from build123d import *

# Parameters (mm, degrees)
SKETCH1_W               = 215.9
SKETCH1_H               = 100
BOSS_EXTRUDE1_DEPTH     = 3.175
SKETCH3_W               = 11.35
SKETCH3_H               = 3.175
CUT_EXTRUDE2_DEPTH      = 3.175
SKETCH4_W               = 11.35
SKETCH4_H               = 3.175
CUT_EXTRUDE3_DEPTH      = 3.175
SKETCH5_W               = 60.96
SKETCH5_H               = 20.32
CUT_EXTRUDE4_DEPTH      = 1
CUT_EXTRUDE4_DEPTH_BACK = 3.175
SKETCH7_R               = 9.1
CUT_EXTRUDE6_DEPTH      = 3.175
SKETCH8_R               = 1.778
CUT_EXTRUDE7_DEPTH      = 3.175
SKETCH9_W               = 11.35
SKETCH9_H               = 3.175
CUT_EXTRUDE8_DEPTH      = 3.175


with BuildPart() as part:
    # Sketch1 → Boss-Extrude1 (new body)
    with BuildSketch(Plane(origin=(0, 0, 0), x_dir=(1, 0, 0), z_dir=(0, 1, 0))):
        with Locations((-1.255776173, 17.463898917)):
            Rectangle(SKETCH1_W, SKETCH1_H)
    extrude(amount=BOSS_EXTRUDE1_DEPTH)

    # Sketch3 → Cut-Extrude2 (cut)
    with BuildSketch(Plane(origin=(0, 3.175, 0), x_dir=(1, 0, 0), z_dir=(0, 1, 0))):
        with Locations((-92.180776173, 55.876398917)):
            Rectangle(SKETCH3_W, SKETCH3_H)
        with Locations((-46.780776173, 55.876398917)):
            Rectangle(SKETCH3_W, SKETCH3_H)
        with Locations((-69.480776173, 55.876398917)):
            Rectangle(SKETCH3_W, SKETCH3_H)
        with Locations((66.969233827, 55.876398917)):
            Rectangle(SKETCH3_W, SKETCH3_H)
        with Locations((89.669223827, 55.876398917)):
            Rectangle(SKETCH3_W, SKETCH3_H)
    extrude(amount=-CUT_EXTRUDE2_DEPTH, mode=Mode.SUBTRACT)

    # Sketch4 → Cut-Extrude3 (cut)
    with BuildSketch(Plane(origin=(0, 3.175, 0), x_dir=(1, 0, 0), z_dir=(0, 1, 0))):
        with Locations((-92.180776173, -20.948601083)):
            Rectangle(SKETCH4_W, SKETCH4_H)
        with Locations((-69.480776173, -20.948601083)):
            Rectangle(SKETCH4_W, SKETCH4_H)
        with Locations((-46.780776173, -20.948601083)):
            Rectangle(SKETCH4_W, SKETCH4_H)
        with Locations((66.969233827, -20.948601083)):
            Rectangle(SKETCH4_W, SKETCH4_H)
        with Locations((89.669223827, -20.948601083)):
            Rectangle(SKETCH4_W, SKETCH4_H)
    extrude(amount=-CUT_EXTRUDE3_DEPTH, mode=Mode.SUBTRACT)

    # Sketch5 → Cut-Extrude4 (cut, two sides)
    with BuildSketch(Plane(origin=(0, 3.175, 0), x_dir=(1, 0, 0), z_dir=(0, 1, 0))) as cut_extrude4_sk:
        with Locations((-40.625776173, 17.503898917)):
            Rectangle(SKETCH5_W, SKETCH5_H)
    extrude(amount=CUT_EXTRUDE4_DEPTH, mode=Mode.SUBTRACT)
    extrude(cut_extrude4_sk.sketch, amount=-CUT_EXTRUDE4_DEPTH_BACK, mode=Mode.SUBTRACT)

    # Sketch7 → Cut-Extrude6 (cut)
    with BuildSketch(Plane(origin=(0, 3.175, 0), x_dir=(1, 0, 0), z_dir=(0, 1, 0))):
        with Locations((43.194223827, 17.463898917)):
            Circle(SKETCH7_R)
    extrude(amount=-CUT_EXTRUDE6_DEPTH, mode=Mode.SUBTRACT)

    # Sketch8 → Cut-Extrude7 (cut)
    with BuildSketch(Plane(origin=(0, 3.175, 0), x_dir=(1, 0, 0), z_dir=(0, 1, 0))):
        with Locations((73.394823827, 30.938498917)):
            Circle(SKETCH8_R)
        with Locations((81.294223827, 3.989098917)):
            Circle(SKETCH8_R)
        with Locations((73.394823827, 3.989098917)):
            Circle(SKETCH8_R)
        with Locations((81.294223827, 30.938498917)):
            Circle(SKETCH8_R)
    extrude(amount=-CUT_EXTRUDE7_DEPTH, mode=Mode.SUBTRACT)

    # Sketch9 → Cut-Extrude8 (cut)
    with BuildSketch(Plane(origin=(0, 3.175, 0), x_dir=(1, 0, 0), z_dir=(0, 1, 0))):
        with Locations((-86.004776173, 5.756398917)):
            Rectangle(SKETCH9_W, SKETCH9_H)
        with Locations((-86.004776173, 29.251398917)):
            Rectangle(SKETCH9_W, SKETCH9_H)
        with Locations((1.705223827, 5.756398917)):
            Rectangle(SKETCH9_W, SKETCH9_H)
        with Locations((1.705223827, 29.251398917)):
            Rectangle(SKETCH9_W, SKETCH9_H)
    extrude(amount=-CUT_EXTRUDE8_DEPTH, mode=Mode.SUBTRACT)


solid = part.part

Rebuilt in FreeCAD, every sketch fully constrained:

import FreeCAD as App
import Part
import Sketcher
Q = App.Units.Quantity

doc = App.newDocument("Part")
body = doc.addObject("PartDesign::Body", "Body")

# Sketch on XZ plane
sketch1 = doc.addObject("Sketcher::SketchObject", "Sketch")
body.addObject(sketch1)
sketch1.AttachmentSupport = (doc.XZ_Plane, [""])
sketch1.MapMode = "FlatFace"
sketch1.addGeometry([
    Part.LineSegment(App.Vector(-109.205776, -67.463899, 0), App.Vector(-109.205776, 32.536101, 0)),
    Part.LineSegment(App.Vector(-109.205776, 32.536101, 0), App.Vector(106.694224, 32.536101, 0)),
    Part.LineSegment(App.Vector(106.694224, 32.536101, 0), App.Vector(106.694224, -67.463899, 0)),
    Part.LineSegment(App.Vector(106.694224, -67.463899, 0), App.Vector(-109.205776, -67.463899, 0)),
], False)
sketch1.addConstraint([
    Sketcher.Constraint("Coincident", 0, 2, 1, 1),
    Sketcher.Constraint("Coincident", 1, 2, 2, 1),
    Sketcher.Constraint("Coincident", 2, 2, 3, 1),
    Sketcher.Constraint("Coincident", 3, 2, 0, 1),
    Sketcher.Constraint("Vertical", 0),
    Sketcher.Constraint("Horizontal", 1),
    Sketcher.Constraint("Vertical", 2),
    Sketcher.Constraint("Horizontal", 3),
    Sketcher.Constraint("DistanceX", 1, 1, 1, 2, Q("8.5 in")),
    Sketcher.Constraint("DistanceY", 0, 1, 0, 2, 100.0),
    Sketcher.Constraint("DistanceY", -1, 1, 0, 2, 32.536101),
    Sketcher.Constraint("DistanceX", 0, 2, -1, 1, 109.205776),
])
pad1 = doc.addObject("PartDesign::Pad", "Pad")
body.addObject(pad1)
pad1.Profile = sketch1
pad1.Length = Q("0.125 in")
pad1.Reversed = True

# Sketch on XZ plane
sketch2 = doc.addObject("Sketcher::SketchObject", "Sketch001")
body.addObject(sketch2)
sketch2.AttachmentSupport = (doc.XZ_Plane, [""])
sketch2.MapMode = "FlatFace"
sketch2.AttachmentOffset = App.Placement(App.Vector(0, 0, -0.125 * 25.4), App.Rotation())
sketch2.addGeometry([
    Part.LineSegment(App.Vector(-97.855776, -57.463899, 0), App.Vector(-97.855776, -54.288899, 0)),  # 0
    Part.LineSegment(App.Vector(-97.855776, -54.288899, 0), App.Vector(-86.505776, -54.288899, 0)),  # 1
    Part.LineSegment(App.Vector(-86.505776, -54.288899, 0), App.Vector(-86.505776, -57.463899, 0)),  # 2
    Part.LineSegment(App.Vector(-86.505776, -57.463899, 0), App.Vector(-97.855776, -57.463899, 0)),  # 3
    Part.LineSegment(App.Vector(-52.455776, -57.463899, 0), App.Vector(-52.455776, -54.288899, 0)),  # 4
    Part.LineSegment(App.Vector(-52.455776, -54.288899, 0), App.Vector(-41.105776, -54.288899, 0)),  # 5
    Part.LineSegment(App.Vector(-41.105776, -54.288899, 0), App.Vector(-41.105776, -57.463899, 0)),  # 6
    Part.LineSegment(App.Vector(-41.105776, -57.463899, 0), App.Vector(-52.455776, -57.463899, 0)),  # 7
    Part.LineSegment(App.Vector(-75.155776, -57.463899, 0), App.Vector(-75.155776, -54.288899, 0)),  # 8
    Part.LineSegment(App.Vector(-75.155776, -54.288899, 0), App.Vector(-63.805776, -54.288899, 0)),  # 9
    Part.LineSegment(App.Vector(-63.805776, -54.288899, 0), App.Vector(-63.805776, -57.463899, 0)),  # 10
    Part.LineSegment(App.Vector(-63.805776, -57.463899, 0), App.Vector(-75.155776, -57.463899, 0)),  # 11
    Part.LineSegment(App.Vector(61.294234, -57.463899, 0), App.Vector(61.294234, -54.288899, 0)),  # 12
    Part.LineSegment(App.Vector(61.294234, -54.288899, 0), App.Vector(72.644234, -54.288899, 0)),  # 13
    Part.LineSegment(App.Vector(72.644234, -54.288899, 0), App.Vector(72.644234, -57.463899, 0)),  # 14
    Part.LineSegment(App.Vector(72.644234, -57.463899, 0), App.Vector(61.294234, -57.463899, 0)),  # 15
    Part.LineSegment(App.Vector(83.994224, -57.463899, 0), App.Vector(83.994224, -54.288899, 0)),  # 16
    Part.LineSegment(App.Vector(83.994224, -54.288899, 0), App.Vector(95.344224, -54.288899, 0)),  # 17
    Part.LineSegment(App.Vector(95.344224, -54.288899, 0), App.Vector(95.344224, -57.463899, 0)),  # 18
    Part.LineSegment(App.Vector(95.344224, -57.463899, 0), App.Vector(83.994224, -57.463899, 0)),  # 19
], False)
sketch2.addConstraint([
    Sketcher.Constraint("Coincident", 0, 2, 1, 1),
    Sketcher.Constraint("Coincident", 1, 2, 2, 1),
    Sketcher.Constraint("Coincident", 2, 2, 3, 1),
    Sketcher.Constraint("Coincident", 3, 2, 0, 1),
    Sketcher.Constraint("Coincident", 4, 2, 5, 1),
    Sketcher.Constraint("Coincident", 5, 2, 6, 1),
    Sketcher.Constraint("Coincident", 6, 2, 7, 1),
    Sketcher.Constraint("Coincident", 7, 2, 4, 1),
    Sketcher.Constraint("Coincident", 8, 2, 9, 1),
    Sketcher.Constraint("Coincident", 9, 2, 10, 1),
    Sketcher.Constraint("Coincident", 10, 2, 11, 1),
    Sketcher.Constraint("Coincident", 11, 2, 8, 1),
    Sketcher.Constraint("Coincident", 12, 2, 13, 1),
    Sketcher.Constraint("Coincident", 13, 2, 14, 1),
    Sketcher.Constraint("Coincident", 14, 2, 15, 1),
    Sketcher.Constraint("Coincident", 15, 2, 12, 1),
    Sketcher.Constraint("Coincident", 16, 2, 17, 1),
    Sketcher.Constraint("Coincident", 17, 2, 18, 1),
    Sketcher.Constraint("Coincident", 18, 2, 19, 1),
    Sketcher.Constraint("Coincident", 19, 2, 16, 1),
    Sketcher.Constraint("Vertical", 0),
    Sketcher.Constraint("Horizontal", 1),
    Sketcher.Constraint("Vertical", 2),
    Sketcher.Constraint("Horizontal", 3),
    Sketcher.Constraint("Vertical", 4),
    Sketcher.Constraint("Horizontal", 5),
    Sketcher.Constraint("Vertical", 6),
    Sketcher.Constraint("Horizontal", 7),
    Sketcher.Constraint("Vertical", 8),
    Sketcher.Constraint("Horizontal", 9),
    Sketcher.Constraint("Vertical", 10),
    Sketcher.Constraint("Horizontal", 11),
    Sketcher.Constraint("Vertical", 12),
    Sketcher.Constraint("Horizontal", 13),
    Sketcher.Constraint("Vertical", 14),
    Sketcher.Constraint("Horizontal", 15),
    Sketcher.Constraint("Vertical", 16),
    Sketcher.Constraint("Horizontal", 17),
    Sketcher.Constraint("Vertical", 18),
    Sketcher.Constraint("Horizontal", 19),
    Sketcher.Constraint("Horizontal", 1, 2, 4, 2),
    Sketcher.Constraint("Horizontal", 3, 2, 6, 2),
    Sketcher.Constraint("Horizontal", 5, 2, 8, 2),
    Sketcher.Constraint("Horizontal", 7, 2, 10, 2),
    Sketcher.Constraint("Horizontal", 9, 2, 12, 2),
    Sketcher.Constraint("Horizontal", 11, 2, 14, 2),
    Sketcher.Constraint("Horizontal", 13, 2, 16, 2),
    Sketcher.Constraint("Horizontal", 15, 2, 18, 2),
    Sketcher.Constraint("Equal", 3, 5),
    Sketcher.Constraint("Equal", 7, 9),
    Sketcher.Constraint("Equal", 11, 13),
    Sketcher.Constraint("Equal", 15, 17),
    Sketcher.Constraint("DistanceY", 0, 1, 0, 2, Q("0.125 in")),
    Sketcher.Constraint("DistanceX", 1, 1, 1, 2, 11.35),
    Sketcher.Constraint("DistanceY", 0, 2, -1, 1, 54.288899),
    Sketcher.Constraint("DistanceX", 1, 2, 4, 2, 34.05),
    Sketcher.Constraint("DistanceX", 1, 2, 8, 2, 11.35),
    Sketcher.Constraint("DistanceX", 5, 2, 16, 2, 125.1),
    Sketcher.Constraint("DistanceX", 5, 2, 12, 2, 102.40001),
    Sketcher.Constraint("DistanceX", 0, 2, -1, 1, 97.855776),
])
pocket1 = doc.addObject("PartDesign::Pocket", "Pocket")
body.addObject(pocket1)
pocket1.Profile = sketch2
pocket1.Length = Q("0.125 in")
pocket1.Reversed = True

# Sketch on XZ plane
sketch3 = doc.addObject("Sketcher::SketchObject", "Sketch002")
body.addObject(sketch3)
sketch3.AttachmentSupport = (doc.XZ_Plane, [""])
sketch3.MapMode = "FlatFace"
sketch3.AttachmentOffset = App.Placement(App.Vector(0, 0, -0.125 * 25.4), App.Rotation())
sketch3.addGeometry([
    Part.LineSegment(App.Vector(-97.855776, 19.361101, 0), App.Vector(-97.855776, 22.536101, 0)),  # 0
    Part.LineSegment(App.Vector(-97.855776, 22.536101, 0), App.Vector(-86.505776, 22.536101, 0)),  # 1
    Part.LineSegment(App.Vector(-86.505776, 22.536101, 0), App.Vector(-86.505776, 19.361101, 0)),  # 2
    Part.LineSegment(App.Vector(-86.505776, 19.361101, 0), App.Vector(-97.855776, 19.361101, 0)),  # 3
    Part.LineSegment(App.Vector(-75.155776, 19.361101, 0), App.Vector(-75.155776, 22.536101, 0)),  # 4
    Part.LineSegment(App.Vector(-75.155776, 22.536101, 0), App.Vector(-63.805776, 22.536101, 0)),  # 5
    Part.LineSegment(App.Vector(-63.805776, 22.536101, 0), App.Vector(-63.805776, 19.361101, 0)),  # 6
    Part.LineSegment(App.Vector(-63.805776, 19.361101, 0), App.Vector(-75.155776, 19.361101, 0)),  # 7
    Part.LineSegment(App.Vector(-52.455776, 19.361101, 0), App.Vector(-52.455776, 22.536101, 0)),  # 8
    Part.LineSegment(App.Vector(-52.455776, 22.536101, 0), App.Vector(-41.105776, 22.536101, 0)),  # 9
    Part.LineSegment(App.Vector(-41.105776, 22.536101, 0), App.Vector(-41.105776, 19.361101, 0)),  # 10
    Part.LineSegment(App.Vector(-41.105776, 19.361101, 0), App.Vector(-52.455776, 19.361101, 0)),  # 11
    Part.LineSegment(App.Vector(61.294234, 19.361101, 0), App.Vector(61.294234, 22.536101, 0)),  # 12
    Part.LineSegment(App.Vector(61.294234, 22.536101, 0), App.Vector(72.644234, 22.536101, 0)),  # 13
    Part.LineSegment(App.Vector(72.644234, 22.536101, 0), App.Vector(72.644234, 19.361101, 0)),  # 14
    Part.LineSegment(App.Vector(72.644234, 19.361101, 0), App.Vector(61.294234, 19.361101, 0)),  # 15
    Part.LineSegment(App.Vector(83.994224, 19.361101, 0), App.Vector(83.994224, 22.536101, 0)),  # 16
    Part.LineSegment(App.Vector(83.994224, 22.536101, 0), App.Vector(95.344224, 22.536101, 0)),  # 17
    Part.LineSegment(App.Vector(95.344224, 22.536101, 0), App.Vector(95.344224, 19.361101, 0)),  # 18
    Part.LineSegment(App.Vector(95.344224, 19.361101, 0), App.Vector(83.994224, 19.361101, 0)),  # 19
], False)
sketch3.addConstraint([
    Sketcher.Constraint("Coincident", 0, 2, 1, 1),
    Sketcher.Constraint("Coincident", 1, 2, 2, 1),
    Sketcher.Constraint("Coincident", 2, 2, 3, 1),
    Sketcher.Constraint("Coincident", 3, 2, 0, 1),
    Sketcher.Constraint("Coincident", 4, 2, 5, 1),
    Sketcher.Constraint("Coincident", 5, 2, 6, 1),
    Sketcher.Constraint("Coincident", 6, 2, 7, 1),
    Sketcher.Constraint("Coincident", 7, 2, 4, 1),
    Sketcher.Constraint("Coincident", 8, 2, 9, 1),
    Sketcher.Constraint("Coincident", 9, 2, 10, 1),
    Sketcher.Constraint("Coincident", 10, 2, 11, 1),
    Sketcher.Constraint("Coincident", 11, 2, 8, 1),
    Sketcher.Constraint("Coincident", 12, 2, 13, 1),
    Sketcher.Constraint("Coincident", 13, 2, 14, 1),
    Sketcher.Constraint("Coincident", 14, 2, 15, 1),
    Sketcher.Constraint("Coincident", 15, 2, 12, 1),
    Sketcher.Constraint("Coincident", 16, 2, 17, 1),
    Sketcher.Constraint("Coincident", 17, 2, 18, 1),
    Sketcher.Constraint("Coincident", 18, 2, 19, 1),
    Sketcher.Constraint("Coincident", 19, 2, 16, 1),
    Sketcher.Constraint("Vertical", 0),
    Sketcher.Constraint("Horizontal", 1),
    Sketcher.Constraint("Vertical", 2),
    Sketcher.Constraint("Horizontal", 3),
    Sketcher.Constraint("Vertical", 4),
    Sketcher.Constraint("Horizontal", 5),
    Sketcher.Constraint("Vertical", 6),
    Sketcher.Constraint("Horizontal", 7),
    Sketcher.Constraint("Vertical", 8),
    Sketcher.Constraint("Horizontal", 9),
    Sketcher.Constraint("Vertical", 10),
    Sketcher.Constraint("Horizontal", 11),
    Sketcher.Constraint("Vertical", 12),
    Sketcher.Constraint("Horizontal", 13),
    Sketcher.Constraint("Vertical", 14),
    Sketcher.Constraint("Horizontal", 15),
    Sketcher.Constraint("Vertical", 16),
    Sketcher.Constraint("Horizontal", 17),
    Sketcher.Constraint("Vertical", 18),
    Sketcher.Constraint("Horizontal", 19),
    Sketcher.Constraint("Horizontal", 1, 2, 4, 2),
    Sketcher.Constraint("Horizontal", 3, 2, 6, 2),
    Sketcher.Constraint("Horizontal", 5, 2, 8, 2),
    Sketcher.Constraint("Horizontal", 7, 2, 10, 2),
    Sketcher.Constraint("Horizontal", 9, 2, 12, 2),
    Sketcher.Constraint("Horizontal", 11, 2, 14, 2),
    Sketcher.Constraint("Horizontal", 13, 2, 16, 2),
    Sketcher.Constraint("Horizontal", 15, 2, 18, 2),
    Sketcher.Constraint("Equal", 3, 5),
    Sketcher.Constraint("Equal", 7, 9),
    Sketcher.Constraint("Equal", 11, 13),
    Sketcher.Constraint("Equal", 15, 17),
    Sketcher.Constraint("DistanceY", 0, 1, 0, 2, Q("0.125 in")),
    Sketcher.Constraint("DistanceX", 1, 1, 1, 2, 11.35),
    Sketcher.Constraint("DistanceY", -1, 1, 0, 2, 22.536101),
    Sketcher.Constraint("DistanceX", 1, 2, 4, 2, 11.35),
    Sketcher.Constraint("DistanceX", 5, 2, 8, 2, 11.35),
    Sketcher.Constraint("DistanceX", 9, 2, 16, 2, 125.1),
    Sketcher.Constraint("DistanceX", 9, 2, 12, 2, 102.40001),
    Sketcher.Constraint("DistanceX", 0, 2, -1, 1, 97.855776),
])
pocket2 = doc.addObject("PartDesign::Pocket", "Pocket001")
body.addObject(pocket2)
pocket2.Profile = sketch3
pocket2.Length = Q("0.125 in")
pocket2.Reversed = True

# Sketch on XZ plane
sketch4 = doc.addObject("Sketcher::SketchObject", "Sketch003")
body.addObject(sketch4)
sketch4.AttachmentSupport = (doc.XZ_Plane, [""])
sketch4.MapMode = "FlatFace"
sketch4.AttachmentOffset = App.Placement(App.Vector(0, 0, -0.125 * 25.4), App.Rotation())
sketch4.addGeometry([
    Part.LineSegment(App.Vector(-71.105776, -27.663899, 0), App.Vector(-71.105776, -7.343899, 0)),
    Part.LineSegment(App.Vector(-71.105776, -7.343899, 0), App.Vector(-10.145776, -7.343899, 0)),
    Part.LineSegment(App.Vector(-10.145776, -7.343899, 0), App.Vector(-10.145776, -27.663899, 0)),
    Part.LineSegment(App.Vector(-10.145776, -27.663899, 0), App.Vector(-71.105776, -27.663899, 0)),
], False)
sketch4.addConstraint([
    Sketcher.Constraint("Coincident", 0, 2, 1, 1),
    Sketcher.Constraint("Coincident", 1, 2, 2, 1),
    Sketcher.Constraint("Coincident", 2, 2, 3, 1),
    Sketcher.Constraint("Coincident", 3, 2, 0, 1),
    Sketcher.Constraint("Vertical", 0),
    Sketcher.Constraint("Horizontal", 1),
    Sketcher.Constraint("Vertical", 2),
    Sketcher.Constraint("Horizontal", 3),
    Sketcher.Constraint("DistanceX", 1, 1, 1, 2, Q("2.4 in")),
    Sketcher.Constraint("DistanceY", 0, 1, 0, 2, Q("0.8 in")),
    Sketcher.Constraint("DistanceY", 0, 2, -1, 1, 7.343899),
    Sketcher.Constraint("DistanceX", 0, 2, -1, 1, 71.105776),
])
pocket3 = doc.addObject("PartDesign::Pocket", "Pocket002")
body.addObject(pocket3)
pocket3.Profile = sketch4
pocket3.Type = "ThroughAll"
pocket3.Midplane = True

# Sketch on XZ plane
sketch5 = doc.addObject("Sketcher::SketchObject", "Sketch004")
body.addObject(sketch5)
sketch5.AttachmentSupport = (doc.XZ_Plane, [""])
sketch5.MapMode = "FlatFace"
sketch5.AttachmentOffset = App.Placement(App.Vector(0, 0, -0.125 * 25.4), App.Rotation())
sketch5.addGeometry(Part.Circle(App.Vector(43.194224, -17.463899, 0), App.Vector(0, 0, 1), 9.1), False)
sketch5.addConstraint([
    Sketcher.Constraint("Diameter", 0, 18.2),
    Sketcher.Constraint("DistanceY", 0, 3, -1, 1, 17.463899),
    Sketcher.Constraint("DistanceX", -1, 1, 0, 3, 43.194224),
])
pocket4 = doc.addObject("PartDesign::Pocket", "Pocket003")
body.addObject(pocket4)
pocket4.Profile = sketch5
pocket4.Length = Q("0.125 in")
pocket4.Reversed = True

# Sketch on XZ plane
sketch6 = doc.addObject("Sketcher::SketchObject", "Sketch005")
body.addObject(sketch6)
sketch6.AttachmentSupport = (doc.XZ_Plane, [""])
sketch6.MapMode = "FlatFace"
sketch6.AttachmentOffset = App.Placement(App.Vector(0, 0, -0.125 * 25.4), App.Rotation())
sketch6.addGeometry([
    Part.Circle(App.Vector(73.394824, -30.938499, 0), App.Vector(0, 0, 1), 1.778),
    Part.Circle(App.Vector(81.294224, -3.989099, 0), App.Vector(0, 0, 1), 1.778),
    Part.Circle(App.Vector(73.394824, -3.989099, 0), App.Vector(0, 0, 1), 1.778),
    Part.Circle(App.Vector(81.294224, -30.938499, 0), App.Vector(0, 0, 1), 1.778),
], False)
sketch6.addConstraint([
    Sketcher.Constraint("Equal", 0, 1),
    Sketcher.Constraint("Equal", 1, 2),
    Sketcher.Constraint("Equal", 2, 3),
    Sketcher.Constraint("Horizontal", 1, 3, 2, 3),
    Sketcher.Constraint("Horizontal", 0, 3, 3, 3),
    Sketcher.Constraint("Vertical", 0, 3, 2, 3),
    Sketcher.Constraint("Vertical", 1, 3, 3, 3),
    Sketcher.Constraint("Diameter", 0, Q("0.14 in")),
    Sketcher.Constraint("DistanceX", 0, 3, 1, 3, Q("0.311 in")),
    Sketcher.Constraint("DistanceY", 0, 3, 1, 3, Q("1.061 in")),
    Sketcher.Constraint("DistanceY", 0, 3, -1, 1, 30.938499),
    Sketcher.Constraint("DistanceX", -1, 1, 0, 3, 73.394824),
])
pocket5 = doc.addObject("PartDesign::Pocket", "Pocket004")
body.addObject(pocket5)
pocket5.Profile = sketch6
pocket5.Length = Q("0.125 in")
pocket5.Reversed = True

# Sketch on XZ plane
sketch7 = doc.addObject("Sketcher::SketchObject", "Sketch006")
body.addObject(sketch7)
sketch7.AttachmentSupport = (doc.XZ_Plane, [""])
sketch7.MapMode = "FlatFace"
sketch7.AttachmentOffset = App.Placement(App.Vector(0, 0, -0.125 * 25.4), App.Rotation())
sketch7.addGeometry([
    Part.LineSegment(App.Vector(-91.679776, -7.343899, 0), App.Vector(-91.679776, -4.168899, 0)),  # 0
    Part.LineSegment(App.Vector(-91.679776, -4.168899, 0), App.Vector(-80.329776, -4.168899, 0)),  # 1
    Part.LineSegment(App.Vector(-80.329776, -4.168899, 0), App.Vector(-80.329776, -7.343899, 0)),  # 2
    Part.LineSegment(App.Vector(-80.329776, -7.343899, 0), App.Vector(-91.679776, -7.343899, 0)),  # 3
    Part.LineSegment(App.Vector(-91.679776, -30.838899, 0), App.Vector(-91.679776, -27.663899, 0)),  # 4
    Part.LineSegment(App.Vector(-91.679776, -27.663899, 0), App.Vector(-80.329776, -27.663899, 0)),  # 5
    Part.LineSegment(App.Vector(-80.329776, -27.663899, 0), App.Vector(-80.329776, -30.838899, 0)),  # 6
    Part.LineSegment(App.Vector(-80.329776, -30.838899, 0), App.Vector(-91.679776, -30.838899, 0)),  # 7
    Part.LineSegment(App.Vector(-3.969776, -7.343899, 0), App.Vector(-3.969776, -4.168899, 0)),  # 8
    Part.LineSegment(App.Vector(-3.969776, -4.168899, 0), App.Vector(7.380224, -4.168899, 0)),  # 9
    Part.LineSegment(App.Vector(7.380224, -4.168899, 0), App.Vector(7.380224, -7.343899, 0)),  # 10
    Part.LineSegment(App.Vector(7.380224, -7.343899, 0), App.Vector(-3.969776, -7.343899, 0)),  # 11
    Part.LineSegment(App.Vector(-3.969776, -30.838899, 0), App.Vector(-3.969776, -27.663899, 0)),  # 12
    Part.LineSegment(App.Vector(-3.969776, -27.663899, 0), App.Vector(7.380224, -27.663899, 0)),  # 13
    Part.LineSegment(App.Vector(7.380224, -27.663899, 0), App.Vector(7.380224, -30.838899, 0)),  # 14
    Part.LineSegment(App.Vector(7.380224, -30.838899, 0), App.Vector(-3.969776, -30.838899, 0)),  # 15
], False)
sketch7.addConstraint([
    Sketcher.Constraint("Coincident", 0, 2, 1, 1),
    Sketcher.Constraint("Coincident", 1, 2, 2, 1),
    Sketcher.Constraint("Coincident", 2, 2, 3, 1),
    Sketcher.Constraint("Coincident", 3, 2, 0, 1),
    Sketcher.Constraint("Coincident", 4, 2, 5, 1),
    Sketcher.Constraint("Coincident", 5, 2, 6, 1),
    Sketcher.Constraint("Coincident", 6, 2, 7, 1),
    Sketcher.Constraint("Coincident", 7, 2, 4, 1),
    Sketcher.Constraint("Coincident", 8, 2, 9, 1),
    Sketcher.Constraint("Coincident", 9, 2, 10, 1),
    Sketcher.Constraint("Coincident", 10, 2, 11, 1),
    Sketcher.Constraint("Coincident", 11, 2, 8, 1),
    Sketcher.Constraint("Coincident", 12, 2, 13, 1),
    Sketcher.Constraint("Coincident", 13, 2, 14, 1),
    Sketcher.Constraint("Coincident", 14, 2, 15, 1),
    Sketcher.Constraint("Coincident", 15, 2, 12, 1),
    Sketcher.Constraint("Vertical", 0),
    Sketcher.Constraint("Horizontal", 1),
    Sketcher.Constraint("Vertical", 2),
    Sketcher.Constraint("Horizontal", 3),
    Sketcher.Constraint("Vertical", 4),
    Sketcher.Constraint("Horizontal", 5),
    Sketcher.Constraint("Vertical", 6),
    Sketcher.Constraint("Horizontal", 7),
    Sketcher.Constraint("Vertical", 8),
    Sketcher.Constraint("Horizontal", 9),
    Sketcher.Constraint("Vertical", 10),
    Sketcher.Constraint("Horizontal", 11),
    Sketcher.Constraint("Vertical", 12),
    Sketcher.Constraint("Horizontal", 13),
    Sketcher.Constraint("Vertical", 14),
    Sketcher.Constraint("Horizontal", 15),
    Sketcher.Constraint("Horizontal", 1, 2, 8, 2),
    Sketcher.Constraint("Horizontal", 3, 2, 10, 2),
    Sketcher.Constraint("Horizontal", 5, 2, 12, 2),
    Sketcher.Constraint("Horizontal", 7, 2, 14, 2),
    Sketcher.Constraint("Vertical", 3, 2, 4, 2),
    Sketcher.Constraint("Vertical", 2, 2, 5, 2),
    Sketcher.Constraint("Vertical", 11, 2, 12, 2),
    Sketcher.Constraint("Vertical", 10, 2, 13, 2),
    Sketcher.Constraint("Equal", 7, 9),
    Sketcher.Constraint("Equal", 2, 4),
    Sketcher.Constraint("DistanceY", 4, 2, 3, 2, Q("0.8 in")),
    Sketcher.Constraint("DistanceY", 0, 1, 0, 2, Q("0.125 in")),
    Sketcher.Constraint("DistanceX", 1, 1, 1, 2, 11.35),
    Sketcher.Constraint("DistanceY", 0, 2, -1, 1, 4.168899),
    Sketcher.Constraint("DistanceX", 1, 2, 8, 2, 76.36),
    Sketcher.Constraint("DistanceX", 0, 2, -1, 1, 91.679776),
])
pocket6 = doc.addObject("PartDesign::Pocket", "Pocket005")
body.addObject(pocket6)
pocket6.Profile = sketch7
pocket6.Length = Q("0.125 in")
pocket6.Reversed = True

doc.recompute()
